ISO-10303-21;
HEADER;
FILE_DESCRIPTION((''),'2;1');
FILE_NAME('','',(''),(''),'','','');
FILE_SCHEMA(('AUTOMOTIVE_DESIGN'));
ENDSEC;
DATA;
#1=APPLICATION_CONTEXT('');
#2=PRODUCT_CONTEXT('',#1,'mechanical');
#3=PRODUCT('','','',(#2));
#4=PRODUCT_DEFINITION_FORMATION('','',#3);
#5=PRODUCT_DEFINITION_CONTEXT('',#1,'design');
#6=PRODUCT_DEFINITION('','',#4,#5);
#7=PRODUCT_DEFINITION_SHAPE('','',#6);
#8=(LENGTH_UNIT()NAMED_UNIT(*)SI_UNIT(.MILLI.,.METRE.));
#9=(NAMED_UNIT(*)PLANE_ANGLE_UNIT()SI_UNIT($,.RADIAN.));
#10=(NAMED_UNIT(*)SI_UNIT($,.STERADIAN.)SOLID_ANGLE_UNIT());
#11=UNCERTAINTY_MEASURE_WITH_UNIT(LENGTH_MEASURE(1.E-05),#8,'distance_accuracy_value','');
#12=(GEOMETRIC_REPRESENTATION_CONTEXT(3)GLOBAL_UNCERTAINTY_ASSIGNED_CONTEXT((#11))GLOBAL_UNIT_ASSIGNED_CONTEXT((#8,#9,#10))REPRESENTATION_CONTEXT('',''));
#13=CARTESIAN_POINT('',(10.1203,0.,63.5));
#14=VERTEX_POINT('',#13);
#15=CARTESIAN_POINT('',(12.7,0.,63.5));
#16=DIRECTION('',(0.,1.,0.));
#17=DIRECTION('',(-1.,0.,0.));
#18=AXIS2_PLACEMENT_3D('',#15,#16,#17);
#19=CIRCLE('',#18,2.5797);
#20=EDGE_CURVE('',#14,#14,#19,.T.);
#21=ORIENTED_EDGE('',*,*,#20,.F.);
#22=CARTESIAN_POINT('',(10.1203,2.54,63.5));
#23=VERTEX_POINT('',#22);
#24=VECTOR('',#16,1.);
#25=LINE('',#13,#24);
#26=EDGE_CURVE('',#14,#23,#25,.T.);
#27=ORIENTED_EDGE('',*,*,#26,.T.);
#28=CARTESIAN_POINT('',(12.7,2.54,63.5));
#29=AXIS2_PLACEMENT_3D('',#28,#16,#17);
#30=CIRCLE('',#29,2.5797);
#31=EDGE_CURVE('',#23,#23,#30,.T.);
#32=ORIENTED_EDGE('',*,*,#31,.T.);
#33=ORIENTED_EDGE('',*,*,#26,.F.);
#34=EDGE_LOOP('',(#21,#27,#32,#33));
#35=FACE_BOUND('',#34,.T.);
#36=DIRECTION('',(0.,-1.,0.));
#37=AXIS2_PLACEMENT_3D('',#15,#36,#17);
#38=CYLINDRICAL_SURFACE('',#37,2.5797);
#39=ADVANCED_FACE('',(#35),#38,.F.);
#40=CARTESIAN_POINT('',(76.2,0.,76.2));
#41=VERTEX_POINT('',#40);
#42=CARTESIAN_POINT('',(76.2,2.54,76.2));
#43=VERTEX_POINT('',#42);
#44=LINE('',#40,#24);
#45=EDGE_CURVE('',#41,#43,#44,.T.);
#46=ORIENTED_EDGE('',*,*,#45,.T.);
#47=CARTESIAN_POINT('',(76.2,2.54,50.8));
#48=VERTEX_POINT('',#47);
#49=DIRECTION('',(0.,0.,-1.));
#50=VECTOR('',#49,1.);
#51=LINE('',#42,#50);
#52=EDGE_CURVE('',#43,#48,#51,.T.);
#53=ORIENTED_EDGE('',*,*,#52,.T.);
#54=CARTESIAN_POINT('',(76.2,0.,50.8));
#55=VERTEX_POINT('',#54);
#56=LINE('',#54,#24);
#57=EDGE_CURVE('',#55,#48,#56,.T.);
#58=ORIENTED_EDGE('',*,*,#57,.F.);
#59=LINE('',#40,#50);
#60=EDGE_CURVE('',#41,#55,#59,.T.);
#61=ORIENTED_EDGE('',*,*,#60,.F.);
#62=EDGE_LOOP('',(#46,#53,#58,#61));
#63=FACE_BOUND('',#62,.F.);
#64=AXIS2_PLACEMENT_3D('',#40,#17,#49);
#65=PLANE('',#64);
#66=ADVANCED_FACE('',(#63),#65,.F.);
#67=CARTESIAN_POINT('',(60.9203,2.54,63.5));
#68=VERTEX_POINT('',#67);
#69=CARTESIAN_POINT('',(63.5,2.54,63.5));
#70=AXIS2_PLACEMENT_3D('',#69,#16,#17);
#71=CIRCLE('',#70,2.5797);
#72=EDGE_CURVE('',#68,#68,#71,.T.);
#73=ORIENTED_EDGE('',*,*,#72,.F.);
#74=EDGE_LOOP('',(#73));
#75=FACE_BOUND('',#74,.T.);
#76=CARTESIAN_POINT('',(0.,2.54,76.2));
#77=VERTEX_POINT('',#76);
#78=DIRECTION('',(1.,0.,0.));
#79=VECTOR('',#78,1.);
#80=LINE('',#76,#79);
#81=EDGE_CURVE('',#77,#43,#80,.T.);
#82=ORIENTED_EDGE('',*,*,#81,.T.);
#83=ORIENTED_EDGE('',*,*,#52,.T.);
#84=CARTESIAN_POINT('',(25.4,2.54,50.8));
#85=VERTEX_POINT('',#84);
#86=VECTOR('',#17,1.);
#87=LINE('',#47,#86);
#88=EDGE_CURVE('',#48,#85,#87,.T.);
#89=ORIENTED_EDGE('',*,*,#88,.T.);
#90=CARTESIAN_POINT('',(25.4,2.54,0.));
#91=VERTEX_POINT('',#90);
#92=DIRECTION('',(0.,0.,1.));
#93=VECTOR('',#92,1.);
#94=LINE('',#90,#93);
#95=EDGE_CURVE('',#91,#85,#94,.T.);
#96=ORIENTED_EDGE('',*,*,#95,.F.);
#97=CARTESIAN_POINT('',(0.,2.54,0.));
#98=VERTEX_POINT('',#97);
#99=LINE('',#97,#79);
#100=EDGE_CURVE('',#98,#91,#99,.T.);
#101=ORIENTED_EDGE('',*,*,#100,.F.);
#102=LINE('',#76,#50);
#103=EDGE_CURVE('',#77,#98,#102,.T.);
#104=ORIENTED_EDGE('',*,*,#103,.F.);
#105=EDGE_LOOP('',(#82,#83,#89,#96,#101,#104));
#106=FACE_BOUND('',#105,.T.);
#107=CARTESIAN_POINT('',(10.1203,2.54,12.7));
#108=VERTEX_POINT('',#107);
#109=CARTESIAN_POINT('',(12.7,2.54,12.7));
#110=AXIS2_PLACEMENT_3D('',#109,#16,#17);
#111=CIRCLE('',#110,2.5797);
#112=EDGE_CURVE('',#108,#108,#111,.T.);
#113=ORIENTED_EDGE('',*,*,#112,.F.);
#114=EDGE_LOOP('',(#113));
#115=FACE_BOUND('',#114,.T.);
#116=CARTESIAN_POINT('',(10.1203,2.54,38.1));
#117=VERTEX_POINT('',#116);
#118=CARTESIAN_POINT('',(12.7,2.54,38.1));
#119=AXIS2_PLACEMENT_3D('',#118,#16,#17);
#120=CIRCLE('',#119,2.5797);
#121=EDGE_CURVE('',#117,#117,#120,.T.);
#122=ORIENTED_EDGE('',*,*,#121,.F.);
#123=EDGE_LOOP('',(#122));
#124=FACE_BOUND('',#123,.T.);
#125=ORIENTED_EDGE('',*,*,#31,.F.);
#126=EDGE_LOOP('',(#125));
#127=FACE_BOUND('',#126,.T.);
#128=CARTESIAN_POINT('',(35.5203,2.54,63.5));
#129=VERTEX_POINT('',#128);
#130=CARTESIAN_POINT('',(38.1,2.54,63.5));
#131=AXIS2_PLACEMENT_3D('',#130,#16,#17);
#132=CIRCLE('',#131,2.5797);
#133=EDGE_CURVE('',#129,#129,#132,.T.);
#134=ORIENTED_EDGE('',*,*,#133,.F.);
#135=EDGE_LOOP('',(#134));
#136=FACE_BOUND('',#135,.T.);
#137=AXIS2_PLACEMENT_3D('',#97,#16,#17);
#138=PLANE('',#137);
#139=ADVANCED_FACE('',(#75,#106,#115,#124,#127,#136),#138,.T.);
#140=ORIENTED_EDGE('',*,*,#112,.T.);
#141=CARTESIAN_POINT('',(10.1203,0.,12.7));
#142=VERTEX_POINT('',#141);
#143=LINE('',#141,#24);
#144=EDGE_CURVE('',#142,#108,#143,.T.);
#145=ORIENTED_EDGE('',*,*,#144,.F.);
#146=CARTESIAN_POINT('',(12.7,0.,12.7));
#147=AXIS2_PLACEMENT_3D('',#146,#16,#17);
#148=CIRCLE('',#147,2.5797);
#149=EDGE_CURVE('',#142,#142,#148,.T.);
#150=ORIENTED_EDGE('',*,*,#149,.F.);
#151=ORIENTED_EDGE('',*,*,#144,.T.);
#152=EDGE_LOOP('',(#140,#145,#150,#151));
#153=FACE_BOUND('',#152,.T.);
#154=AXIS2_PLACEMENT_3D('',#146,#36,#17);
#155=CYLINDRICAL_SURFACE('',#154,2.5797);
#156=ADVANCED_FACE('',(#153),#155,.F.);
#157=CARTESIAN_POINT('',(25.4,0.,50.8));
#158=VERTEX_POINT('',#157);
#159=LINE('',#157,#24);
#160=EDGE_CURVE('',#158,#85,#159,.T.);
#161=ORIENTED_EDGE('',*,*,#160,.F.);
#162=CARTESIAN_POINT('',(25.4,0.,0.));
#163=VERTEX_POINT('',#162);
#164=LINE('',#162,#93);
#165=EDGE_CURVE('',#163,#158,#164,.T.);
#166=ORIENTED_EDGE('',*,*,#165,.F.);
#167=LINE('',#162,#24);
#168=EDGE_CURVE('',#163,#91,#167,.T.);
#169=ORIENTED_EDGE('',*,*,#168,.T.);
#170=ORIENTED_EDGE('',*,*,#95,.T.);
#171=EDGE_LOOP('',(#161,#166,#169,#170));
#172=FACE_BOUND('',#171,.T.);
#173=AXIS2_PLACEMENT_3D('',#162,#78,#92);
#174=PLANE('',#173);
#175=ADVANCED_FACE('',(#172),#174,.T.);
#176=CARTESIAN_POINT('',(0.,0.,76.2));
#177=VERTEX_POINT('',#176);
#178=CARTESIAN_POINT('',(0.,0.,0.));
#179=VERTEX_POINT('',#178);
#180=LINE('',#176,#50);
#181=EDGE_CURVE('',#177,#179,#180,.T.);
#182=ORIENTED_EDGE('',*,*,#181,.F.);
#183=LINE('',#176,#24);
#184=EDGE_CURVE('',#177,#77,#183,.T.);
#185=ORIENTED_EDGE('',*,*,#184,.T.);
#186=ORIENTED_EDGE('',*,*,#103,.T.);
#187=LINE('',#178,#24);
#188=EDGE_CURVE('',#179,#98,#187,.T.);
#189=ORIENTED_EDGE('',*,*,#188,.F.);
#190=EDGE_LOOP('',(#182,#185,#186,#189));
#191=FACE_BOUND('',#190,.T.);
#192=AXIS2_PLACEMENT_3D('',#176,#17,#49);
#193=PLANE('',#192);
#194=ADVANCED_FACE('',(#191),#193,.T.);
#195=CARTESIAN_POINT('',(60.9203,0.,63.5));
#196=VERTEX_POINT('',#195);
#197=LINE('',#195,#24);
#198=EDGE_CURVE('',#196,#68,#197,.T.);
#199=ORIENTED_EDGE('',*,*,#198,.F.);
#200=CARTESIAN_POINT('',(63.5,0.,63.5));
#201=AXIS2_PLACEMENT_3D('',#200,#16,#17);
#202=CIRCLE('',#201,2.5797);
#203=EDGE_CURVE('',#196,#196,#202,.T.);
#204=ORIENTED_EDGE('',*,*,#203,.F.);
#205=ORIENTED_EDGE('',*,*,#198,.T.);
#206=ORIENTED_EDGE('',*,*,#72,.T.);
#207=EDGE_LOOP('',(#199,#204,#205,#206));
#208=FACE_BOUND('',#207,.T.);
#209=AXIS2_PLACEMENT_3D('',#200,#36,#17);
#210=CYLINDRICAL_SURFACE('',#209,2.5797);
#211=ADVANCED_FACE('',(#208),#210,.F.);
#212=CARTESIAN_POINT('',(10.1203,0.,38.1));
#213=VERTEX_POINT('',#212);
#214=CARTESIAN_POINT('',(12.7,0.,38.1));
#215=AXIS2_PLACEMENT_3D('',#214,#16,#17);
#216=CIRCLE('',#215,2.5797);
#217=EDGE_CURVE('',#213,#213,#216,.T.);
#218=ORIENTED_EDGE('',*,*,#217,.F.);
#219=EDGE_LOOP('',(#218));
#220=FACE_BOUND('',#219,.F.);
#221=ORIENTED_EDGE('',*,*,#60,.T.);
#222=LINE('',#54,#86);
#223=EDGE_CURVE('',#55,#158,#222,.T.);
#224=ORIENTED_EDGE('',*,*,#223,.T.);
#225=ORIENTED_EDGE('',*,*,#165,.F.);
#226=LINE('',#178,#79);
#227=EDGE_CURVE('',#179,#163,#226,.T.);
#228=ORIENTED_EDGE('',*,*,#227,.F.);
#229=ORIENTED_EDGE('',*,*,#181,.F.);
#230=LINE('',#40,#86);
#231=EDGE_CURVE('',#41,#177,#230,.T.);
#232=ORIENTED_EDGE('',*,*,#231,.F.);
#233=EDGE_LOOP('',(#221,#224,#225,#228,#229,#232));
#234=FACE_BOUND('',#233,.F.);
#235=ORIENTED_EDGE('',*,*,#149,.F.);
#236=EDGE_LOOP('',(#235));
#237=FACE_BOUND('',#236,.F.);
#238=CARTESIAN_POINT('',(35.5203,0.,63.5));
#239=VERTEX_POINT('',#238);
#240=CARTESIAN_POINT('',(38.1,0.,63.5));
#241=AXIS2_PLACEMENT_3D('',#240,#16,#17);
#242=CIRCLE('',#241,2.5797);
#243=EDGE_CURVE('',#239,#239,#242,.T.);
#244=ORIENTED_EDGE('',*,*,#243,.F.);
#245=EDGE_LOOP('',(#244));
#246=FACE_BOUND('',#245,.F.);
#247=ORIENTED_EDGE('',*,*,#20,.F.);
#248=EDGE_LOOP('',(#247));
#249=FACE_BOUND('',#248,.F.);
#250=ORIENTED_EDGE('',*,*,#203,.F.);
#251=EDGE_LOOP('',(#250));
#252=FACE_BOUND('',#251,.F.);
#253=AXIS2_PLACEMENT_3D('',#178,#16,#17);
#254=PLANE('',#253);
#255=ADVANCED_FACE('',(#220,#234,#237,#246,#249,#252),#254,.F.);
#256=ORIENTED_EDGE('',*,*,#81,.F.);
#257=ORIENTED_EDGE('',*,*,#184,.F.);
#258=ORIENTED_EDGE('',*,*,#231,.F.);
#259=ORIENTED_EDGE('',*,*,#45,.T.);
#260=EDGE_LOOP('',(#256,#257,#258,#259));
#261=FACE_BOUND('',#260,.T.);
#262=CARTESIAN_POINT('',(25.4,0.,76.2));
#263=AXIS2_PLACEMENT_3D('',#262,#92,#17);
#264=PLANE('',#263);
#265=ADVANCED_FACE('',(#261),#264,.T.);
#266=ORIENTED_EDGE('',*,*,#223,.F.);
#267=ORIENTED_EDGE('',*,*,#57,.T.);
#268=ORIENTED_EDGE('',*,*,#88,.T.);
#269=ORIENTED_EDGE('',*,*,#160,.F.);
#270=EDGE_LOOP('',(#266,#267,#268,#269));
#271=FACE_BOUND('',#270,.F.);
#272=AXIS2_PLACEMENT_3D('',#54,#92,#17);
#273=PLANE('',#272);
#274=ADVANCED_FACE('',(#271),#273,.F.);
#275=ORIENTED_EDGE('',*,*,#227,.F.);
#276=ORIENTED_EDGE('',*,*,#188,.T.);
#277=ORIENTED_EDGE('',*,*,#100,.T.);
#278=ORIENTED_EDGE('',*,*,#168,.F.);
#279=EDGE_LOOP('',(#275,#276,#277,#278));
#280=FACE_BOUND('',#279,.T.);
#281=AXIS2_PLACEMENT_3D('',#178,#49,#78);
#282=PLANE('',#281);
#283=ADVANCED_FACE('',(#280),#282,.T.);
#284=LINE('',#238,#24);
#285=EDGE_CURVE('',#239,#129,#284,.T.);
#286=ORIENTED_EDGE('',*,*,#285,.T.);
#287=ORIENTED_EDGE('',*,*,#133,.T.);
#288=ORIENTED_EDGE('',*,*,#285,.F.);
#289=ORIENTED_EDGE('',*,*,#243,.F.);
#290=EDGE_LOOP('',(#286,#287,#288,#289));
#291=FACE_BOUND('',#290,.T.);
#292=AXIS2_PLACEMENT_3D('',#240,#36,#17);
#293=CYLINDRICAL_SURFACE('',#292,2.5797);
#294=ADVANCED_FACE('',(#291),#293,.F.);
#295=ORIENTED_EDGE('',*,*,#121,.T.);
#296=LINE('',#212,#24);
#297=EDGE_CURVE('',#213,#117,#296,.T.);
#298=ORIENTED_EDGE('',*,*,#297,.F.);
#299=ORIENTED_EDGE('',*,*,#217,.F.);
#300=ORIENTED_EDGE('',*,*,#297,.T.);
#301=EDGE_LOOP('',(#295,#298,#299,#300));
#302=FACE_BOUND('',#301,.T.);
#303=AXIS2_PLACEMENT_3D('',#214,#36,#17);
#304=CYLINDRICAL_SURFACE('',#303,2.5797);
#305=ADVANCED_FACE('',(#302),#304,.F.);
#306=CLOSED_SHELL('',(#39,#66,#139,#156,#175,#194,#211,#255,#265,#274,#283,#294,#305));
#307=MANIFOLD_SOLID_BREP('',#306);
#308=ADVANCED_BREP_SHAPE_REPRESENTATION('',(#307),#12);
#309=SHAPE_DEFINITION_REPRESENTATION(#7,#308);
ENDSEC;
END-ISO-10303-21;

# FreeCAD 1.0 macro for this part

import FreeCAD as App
import Part
import Sketcher
Q = App.Units.Quantity

doc = App.newDocument("Part")
body = doc.addObject("PartDesign::Body", "Body")

sketch1 = body.newObject("Sketcher::SketchObject", "Sketch")
sketch1.AttachmentSupport = (doc.getObject("XZ_Plane"), [""])
sketch1.MapMode = "FlatFace"
sketch1.addGeometry([
    Part.LineSegment(App.Vector(25.4, 0, 0), App.Vector(0, 0, 0)),
    Part.LineSegment(App.Vector(0, 0, 0), App.Vector(0, 76.2, 0)),
    Part.LineSegment(App.Vector(0, 76.2, 0), App.Vector(76.2, 76.2, 0)),
    Part.LineSegment(App.Vector(76.2, 76.2, 0), App.Vector(76.2, 50.8, 0)),
    Part.LineSegment(App.Vector(76.2, 50.8, 0), App.Vector(25.4, 50.8, 0)),
    Part.LineSegment(App.Vector(25.4, 50.8, 0), App.Vector(25.4, 0, 0)),
    Part.Circle(App.Vector(12.7, 12.7, 0), App.Vector(0, 0, 1), 2.6),
    Part.Circle(App.Vector(12.7, 38.1, 0), App.Vector(0, 0, 1), 2.6),
    Part.Circle(App.Vector(12.7, 63.5, 0), App.Vector(0, 0, 1), 2.6),
    Part.Circle(App.Vector(38.1, 63.5, 0), App.Vector(0, 0, 1), 2.6),
    Part.Circle(App.Vector(63.5, 63.5, 0), App.Vector(0, 0, 1), 2.6),
], False)
sketch1.addConstraint([
    Sketcher.Constraint("Coincident", 0, 2, 1, 1),
    Sketcher.Constraint("Coincident", 1, 2, 2, 1),
    Sketcher.Constraint("Coincident", 2, 2, 3, 1),
    Sketcher.Constraint("Coincident", 3, 2, 4, 1),
    Sketcher.Constraint("Coincident", 4, 2, 5, 1),
    Sketcher.Constraint("Coincident", 5, 2, 0, 1),
    Sketcher.Constraint("Horizontal", 0),
    Sketcher.Constraint("Vertical", 1),
    Sketcher.Constraint("Horizontal", 2),
    Sketcher.Constraint("Vertical", 3),
    Sketcher.Constraint("Horizontal", 4),
    Sketcher.Constraint("Vertical", 5),
    Sketcher.Constraint("Coincident", 0, 2, -1, 1),
    Sketcher.Constraint("Equal", 6, 7),
    Sketcher.Constraint("Equal", 7, 8),
    Sketcher.Constraint("Equal", 8, 9),
    Sketcher.Constraint("Equal", 9, 10),
    Sketcher.Constraint("Horizontal", 8, 3, 9, 3),
    Sketcher.Constraint("Horizontal", 9, 3, 10, 3),
    Sketcher.Constraint("Vertical", 6, 3, 7, 3),
    Sketcher.Constraint("Vertical", 7, 3, 8, 3),
    Sketcher.Constraint("Equal", 2, 1),
    Sketcher.Constraint("Equal", 0, 3),
    Sketcher.Constraint("DistanceX", 0, 2, 0, 1, Q("1 in")),
    Sketcher.Constraint("DistanceX", 2, 1, 2, 2, Q("3 in")),
    Sketcher.Constraint("Diameter", 6, Q("0.203126 in")),
    Sketcher.Constraint("DistanceY", 6, 3, 7, 3, Q("1 in")),
    Sketcher.Constraint("DistanceY", 7, 3, 8, 3, Q("1 in")),
    Sketcher.Constraint("DistanceX", 8, 3, 9, 3, Q("1 in")),
    Sketcher.Constraint("DistanceX", 9, 3, 10, 3, Q("1 in")),
    Sketcher.Constraint("DistanceX", -1, 1, 6, 3, Q("0.5 in")),
    Sketcher.Constraint("DistanceY", -1, 1, 6, 3, Q("0.5 in")),
])
pad1 = body.newObject("PartDesign::Pad", "Pad")
pad1.Profile = sketch1
pad1.Length = Q("0.1 in")
pad1.Reversed = True

doc.recompute()
